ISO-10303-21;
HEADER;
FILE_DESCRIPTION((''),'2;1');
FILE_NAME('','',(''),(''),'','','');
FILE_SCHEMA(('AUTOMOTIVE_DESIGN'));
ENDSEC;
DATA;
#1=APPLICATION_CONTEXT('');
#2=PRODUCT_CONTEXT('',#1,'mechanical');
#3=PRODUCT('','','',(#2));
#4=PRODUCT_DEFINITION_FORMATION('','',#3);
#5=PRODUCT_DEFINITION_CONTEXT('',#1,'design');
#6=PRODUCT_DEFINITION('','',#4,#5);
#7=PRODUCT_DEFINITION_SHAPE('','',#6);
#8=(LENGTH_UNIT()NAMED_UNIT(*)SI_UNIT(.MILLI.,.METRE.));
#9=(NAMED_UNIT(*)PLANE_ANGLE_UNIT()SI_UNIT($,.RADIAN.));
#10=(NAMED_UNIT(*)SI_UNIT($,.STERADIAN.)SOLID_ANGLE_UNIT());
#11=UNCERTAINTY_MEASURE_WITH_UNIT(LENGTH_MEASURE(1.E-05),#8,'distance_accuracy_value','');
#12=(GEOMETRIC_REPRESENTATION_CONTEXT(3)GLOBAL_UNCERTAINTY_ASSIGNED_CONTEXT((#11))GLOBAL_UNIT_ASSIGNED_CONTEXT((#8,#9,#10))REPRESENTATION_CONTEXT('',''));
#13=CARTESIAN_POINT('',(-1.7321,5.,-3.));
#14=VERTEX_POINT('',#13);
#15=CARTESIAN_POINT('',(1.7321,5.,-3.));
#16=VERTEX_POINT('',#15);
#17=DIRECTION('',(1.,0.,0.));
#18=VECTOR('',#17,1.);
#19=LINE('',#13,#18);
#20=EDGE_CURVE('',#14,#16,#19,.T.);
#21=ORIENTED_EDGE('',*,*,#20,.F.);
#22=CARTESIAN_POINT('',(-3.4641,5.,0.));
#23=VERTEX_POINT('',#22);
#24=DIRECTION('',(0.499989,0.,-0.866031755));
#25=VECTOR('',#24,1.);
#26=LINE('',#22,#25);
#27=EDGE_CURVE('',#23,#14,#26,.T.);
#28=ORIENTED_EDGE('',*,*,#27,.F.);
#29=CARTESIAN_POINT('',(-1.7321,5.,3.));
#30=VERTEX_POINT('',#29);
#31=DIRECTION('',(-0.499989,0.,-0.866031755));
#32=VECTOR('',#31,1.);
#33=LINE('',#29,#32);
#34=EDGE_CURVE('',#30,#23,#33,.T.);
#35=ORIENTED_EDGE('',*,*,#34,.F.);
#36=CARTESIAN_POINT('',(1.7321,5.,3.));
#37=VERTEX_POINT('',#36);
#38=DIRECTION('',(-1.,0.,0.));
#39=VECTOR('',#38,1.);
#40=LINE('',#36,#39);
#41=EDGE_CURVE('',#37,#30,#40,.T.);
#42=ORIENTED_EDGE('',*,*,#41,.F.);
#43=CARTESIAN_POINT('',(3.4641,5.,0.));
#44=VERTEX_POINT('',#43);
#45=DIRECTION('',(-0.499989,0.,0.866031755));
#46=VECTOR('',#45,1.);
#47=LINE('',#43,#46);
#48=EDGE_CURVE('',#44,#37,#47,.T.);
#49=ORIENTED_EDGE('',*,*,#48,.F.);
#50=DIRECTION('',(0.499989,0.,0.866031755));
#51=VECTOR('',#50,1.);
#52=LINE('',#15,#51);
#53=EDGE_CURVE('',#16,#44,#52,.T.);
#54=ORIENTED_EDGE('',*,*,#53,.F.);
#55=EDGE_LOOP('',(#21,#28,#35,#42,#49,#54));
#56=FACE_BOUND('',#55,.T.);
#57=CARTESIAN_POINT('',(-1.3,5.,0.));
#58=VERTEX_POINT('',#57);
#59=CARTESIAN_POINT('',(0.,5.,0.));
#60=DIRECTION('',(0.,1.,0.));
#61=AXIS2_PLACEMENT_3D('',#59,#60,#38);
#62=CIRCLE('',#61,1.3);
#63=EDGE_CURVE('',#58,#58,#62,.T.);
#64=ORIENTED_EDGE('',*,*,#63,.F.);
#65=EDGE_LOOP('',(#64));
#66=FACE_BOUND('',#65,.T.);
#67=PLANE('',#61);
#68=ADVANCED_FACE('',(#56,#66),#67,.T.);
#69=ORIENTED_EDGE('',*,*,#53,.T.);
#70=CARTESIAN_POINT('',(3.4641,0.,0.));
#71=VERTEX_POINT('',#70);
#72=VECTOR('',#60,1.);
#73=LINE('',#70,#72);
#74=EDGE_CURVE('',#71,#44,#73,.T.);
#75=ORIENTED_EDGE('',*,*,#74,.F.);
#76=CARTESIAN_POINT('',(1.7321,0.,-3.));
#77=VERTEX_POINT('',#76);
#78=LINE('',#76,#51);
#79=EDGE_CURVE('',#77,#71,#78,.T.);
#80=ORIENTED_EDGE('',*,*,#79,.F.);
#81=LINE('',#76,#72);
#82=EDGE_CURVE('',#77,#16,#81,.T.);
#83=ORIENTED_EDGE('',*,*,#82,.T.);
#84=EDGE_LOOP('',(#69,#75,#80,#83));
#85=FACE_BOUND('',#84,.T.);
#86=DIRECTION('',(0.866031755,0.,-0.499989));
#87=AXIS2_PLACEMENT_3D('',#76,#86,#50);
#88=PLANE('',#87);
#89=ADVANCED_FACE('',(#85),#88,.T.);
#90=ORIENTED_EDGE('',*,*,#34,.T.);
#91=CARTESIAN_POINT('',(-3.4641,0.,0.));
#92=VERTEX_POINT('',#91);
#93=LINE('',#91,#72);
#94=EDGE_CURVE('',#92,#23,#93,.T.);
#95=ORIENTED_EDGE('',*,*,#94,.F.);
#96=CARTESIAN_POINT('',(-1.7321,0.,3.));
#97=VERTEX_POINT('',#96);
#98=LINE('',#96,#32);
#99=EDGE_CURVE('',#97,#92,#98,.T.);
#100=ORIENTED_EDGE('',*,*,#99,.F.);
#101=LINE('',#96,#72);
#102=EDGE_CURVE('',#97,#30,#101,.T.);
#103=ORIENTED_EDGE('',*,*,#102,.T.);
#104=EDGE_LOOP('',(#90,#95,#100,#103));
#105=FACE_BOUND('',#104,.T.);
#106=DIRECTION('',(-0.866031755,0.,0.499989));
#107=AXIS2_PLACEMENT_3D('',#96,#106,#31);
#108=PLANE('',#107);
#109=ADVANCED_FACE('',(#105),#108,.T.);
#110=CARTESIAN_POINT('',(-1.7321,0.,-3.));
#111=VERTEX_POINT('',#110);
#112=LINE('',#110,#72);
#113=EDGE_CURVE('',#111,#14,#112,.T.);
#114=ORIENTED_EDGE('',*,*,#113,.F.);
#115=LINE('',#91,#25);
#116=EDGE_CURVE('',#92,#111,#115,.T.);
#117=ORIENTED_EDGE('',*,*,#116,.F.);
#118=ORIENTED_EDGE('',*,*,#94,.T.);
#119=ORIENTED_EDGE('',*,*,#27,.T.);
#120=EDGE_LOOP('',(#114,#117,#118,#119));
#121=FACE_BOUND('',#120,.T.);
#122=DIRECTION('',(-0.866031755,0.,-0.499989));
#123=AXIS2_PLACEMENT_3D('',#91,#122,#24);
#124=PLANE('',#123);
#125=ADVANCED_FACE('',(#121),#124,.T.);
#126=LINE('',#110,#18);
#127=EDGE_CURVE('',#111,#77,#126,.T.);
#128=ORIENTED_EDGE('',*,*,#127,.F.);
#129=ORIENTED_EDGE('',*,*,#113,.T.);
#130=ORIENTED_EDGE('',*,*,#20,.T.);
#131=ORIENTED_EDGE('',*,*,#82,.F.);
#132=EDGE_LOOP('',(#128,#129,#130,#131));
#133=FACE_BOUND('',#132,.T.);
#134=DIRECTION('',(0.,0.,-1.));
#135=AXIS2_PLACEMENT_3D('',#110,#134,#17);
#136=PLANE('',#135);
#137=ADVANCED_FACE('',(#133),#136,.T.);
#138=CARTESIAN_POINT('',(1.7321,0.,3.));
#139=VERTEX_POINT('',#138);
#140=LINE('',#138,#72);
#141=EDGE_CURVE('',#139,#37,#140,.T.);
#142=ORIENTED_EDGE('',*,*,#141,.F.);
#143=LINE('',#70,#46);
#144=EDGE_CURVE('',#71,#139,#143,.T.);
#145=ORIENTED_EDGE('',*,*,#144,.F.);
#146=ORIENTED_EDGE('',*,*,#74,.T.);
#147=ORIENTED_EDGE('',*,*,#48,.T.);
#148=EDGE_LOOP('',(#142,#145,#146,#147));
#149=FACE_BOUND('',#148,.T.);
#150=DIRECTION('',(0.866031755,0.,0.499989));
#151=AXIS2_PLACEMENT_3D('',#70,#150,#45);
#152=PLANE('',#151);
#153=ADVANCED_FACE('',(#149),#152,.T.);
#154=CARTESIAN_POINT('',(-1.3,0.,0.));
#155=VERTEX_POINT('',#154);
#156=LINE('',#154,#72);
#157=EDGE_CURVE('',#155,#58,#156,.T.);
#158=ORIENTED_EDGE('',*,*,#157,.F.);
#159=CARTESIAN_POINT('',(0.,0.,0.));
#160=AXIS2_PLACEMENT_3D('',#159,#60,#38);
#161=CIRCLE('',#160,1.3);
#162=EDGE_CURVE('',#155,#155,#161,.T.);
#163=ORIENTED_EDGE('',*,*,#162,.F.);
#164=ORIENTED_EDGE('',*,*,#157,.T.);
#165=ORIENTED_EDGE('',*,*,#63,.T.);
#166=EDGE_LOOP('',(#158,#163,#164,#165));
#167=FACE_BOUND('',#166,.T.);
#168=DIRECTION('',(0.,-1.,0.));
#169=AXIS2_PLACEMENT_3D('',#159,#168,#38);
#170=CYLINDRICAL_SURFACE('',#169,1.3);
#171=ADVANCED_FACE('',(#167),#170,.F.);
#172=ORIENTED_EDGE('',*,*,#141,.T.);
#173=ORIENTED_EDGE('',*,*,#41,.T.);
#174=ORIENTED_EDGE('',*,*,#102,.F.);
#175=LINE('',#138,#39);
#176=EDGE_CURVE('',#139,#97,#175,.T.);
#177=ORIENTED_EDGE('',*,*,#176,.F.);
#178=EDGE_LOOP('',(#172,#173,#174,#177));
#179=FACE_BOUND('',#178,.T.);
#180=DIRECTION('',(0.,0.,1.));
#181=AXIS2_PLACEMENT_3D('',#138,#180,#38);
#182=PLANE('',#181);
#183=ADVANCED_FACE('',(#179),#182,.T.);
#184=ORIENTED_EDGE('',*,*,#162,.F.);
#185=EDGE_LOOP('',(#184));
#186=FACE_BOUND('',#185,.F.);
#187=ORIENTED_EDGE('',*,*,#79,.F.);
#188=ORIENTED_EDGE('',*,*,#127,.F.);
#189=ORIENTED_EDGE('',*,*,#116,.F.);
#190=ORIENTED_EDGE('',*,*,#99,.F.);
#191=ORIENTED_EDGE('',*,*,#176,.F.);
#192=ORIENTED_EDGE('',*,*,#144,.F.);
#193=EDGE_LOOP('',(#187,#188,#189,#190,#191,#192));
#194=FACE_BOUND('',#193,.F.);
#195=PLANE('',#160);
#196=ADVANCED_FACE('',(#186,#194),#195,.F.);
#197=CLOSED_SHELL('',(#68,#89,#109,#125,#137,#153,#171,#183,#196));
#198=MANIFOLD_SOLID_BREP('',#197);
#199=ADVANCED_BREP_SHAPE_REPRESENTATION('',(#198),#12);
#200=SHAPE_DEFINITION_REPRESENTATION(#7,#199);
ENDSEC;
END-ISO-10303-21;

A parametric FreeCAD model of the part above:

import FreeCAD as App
import Part
import Sketcher

V = App.Vector
Q = App.Units.Quantity


def add_polygon(sketch, points):
    """Adds a closed chain of lines whose ends are joined by coincident constraints."""
    first, n = sketch.GeometryCount, len(points)
    for a, b in zip(points, points[1:] + points[:1]):
        sketch.addGeometry(Part.LineSegment(App.Vector(*a, 0), App.Vector(*b, 0)), False)
    for i in range(n):
        sketch.addConstraint(Sketcher.Constraint("Coincident", first + i, 2, first + (i + 1) % n, 1))

doc = App.newDocument("Part")
body = doc.addObject("PartDesign::Body", "Body")

sketch1 = doc.addObject("Sketcher::SketchObject", "Sketch")
body.addObject(sketch1)
sketch1.AttachmentSupport = (doc.XZ_Plane, [""])
sketch1.MapMode = "FlatFace"
add_polygon(sketch1, [(-1.7321, -3), (-3.4641, 0), (-1.7321, 3), (1.7321, 3), (3.4641, 0), (1.7321, -3)])
sketch1.addGeometry(Part.Circle(V(0, 0, 0), V(0, 0, 1), 1.3), False)
sketch1.addConstraint(Sketcher.Constraint("Horizontal", 2))
sketch1.addConstraint(Sketcher.Constraint("Horizontal", 5))
sketch1.addConstraint(Sketcher.Constraint("Coincident", 6, 3, -1, 1))
sketch1.addConstraint(Sketcher.Constraint("Symmetric", 0, 2, 3, 2, -1, 1))
sketch1.addConstraint(Sketcher.Constraint("Symmetric", 1, 2, 4, 2, -1, 1))
sketch1.addConstraint(Sketcher.Constraint("PointOnObject", 0, 2, -1))
sketch1.addConstraint(Sketcher.Constraint("Parallel", 0, 3))
sketch1.addConstraint(Sketcher.Constraint("Vertical", 2, 2, 4, 2))
sketch1.addConstraint(Sketcher.Constraint("Diameter", 6, Q("2.6 mm")))
sketch1.addConstraint(Sketcher.Constraint("DistanceY", -1, 1, 1, 2, Q("3 mm")))
sketch1.addConstraint(Sketcher.Constraint("Angle", 0, Q("119.9993 deg")))
sketch1.addConstraint(Sketcher.Constraint("DistanceX", 2, 1, 2, 2, Q("3.4642 mm")))
pad1 = doc.addObject("PartDesign::Pad", "Pad")
body.addObject(pad1)
pad1.Profile = sketch1
pad1.Length = 5
pad1.Reversed = True

doc.recompute()
